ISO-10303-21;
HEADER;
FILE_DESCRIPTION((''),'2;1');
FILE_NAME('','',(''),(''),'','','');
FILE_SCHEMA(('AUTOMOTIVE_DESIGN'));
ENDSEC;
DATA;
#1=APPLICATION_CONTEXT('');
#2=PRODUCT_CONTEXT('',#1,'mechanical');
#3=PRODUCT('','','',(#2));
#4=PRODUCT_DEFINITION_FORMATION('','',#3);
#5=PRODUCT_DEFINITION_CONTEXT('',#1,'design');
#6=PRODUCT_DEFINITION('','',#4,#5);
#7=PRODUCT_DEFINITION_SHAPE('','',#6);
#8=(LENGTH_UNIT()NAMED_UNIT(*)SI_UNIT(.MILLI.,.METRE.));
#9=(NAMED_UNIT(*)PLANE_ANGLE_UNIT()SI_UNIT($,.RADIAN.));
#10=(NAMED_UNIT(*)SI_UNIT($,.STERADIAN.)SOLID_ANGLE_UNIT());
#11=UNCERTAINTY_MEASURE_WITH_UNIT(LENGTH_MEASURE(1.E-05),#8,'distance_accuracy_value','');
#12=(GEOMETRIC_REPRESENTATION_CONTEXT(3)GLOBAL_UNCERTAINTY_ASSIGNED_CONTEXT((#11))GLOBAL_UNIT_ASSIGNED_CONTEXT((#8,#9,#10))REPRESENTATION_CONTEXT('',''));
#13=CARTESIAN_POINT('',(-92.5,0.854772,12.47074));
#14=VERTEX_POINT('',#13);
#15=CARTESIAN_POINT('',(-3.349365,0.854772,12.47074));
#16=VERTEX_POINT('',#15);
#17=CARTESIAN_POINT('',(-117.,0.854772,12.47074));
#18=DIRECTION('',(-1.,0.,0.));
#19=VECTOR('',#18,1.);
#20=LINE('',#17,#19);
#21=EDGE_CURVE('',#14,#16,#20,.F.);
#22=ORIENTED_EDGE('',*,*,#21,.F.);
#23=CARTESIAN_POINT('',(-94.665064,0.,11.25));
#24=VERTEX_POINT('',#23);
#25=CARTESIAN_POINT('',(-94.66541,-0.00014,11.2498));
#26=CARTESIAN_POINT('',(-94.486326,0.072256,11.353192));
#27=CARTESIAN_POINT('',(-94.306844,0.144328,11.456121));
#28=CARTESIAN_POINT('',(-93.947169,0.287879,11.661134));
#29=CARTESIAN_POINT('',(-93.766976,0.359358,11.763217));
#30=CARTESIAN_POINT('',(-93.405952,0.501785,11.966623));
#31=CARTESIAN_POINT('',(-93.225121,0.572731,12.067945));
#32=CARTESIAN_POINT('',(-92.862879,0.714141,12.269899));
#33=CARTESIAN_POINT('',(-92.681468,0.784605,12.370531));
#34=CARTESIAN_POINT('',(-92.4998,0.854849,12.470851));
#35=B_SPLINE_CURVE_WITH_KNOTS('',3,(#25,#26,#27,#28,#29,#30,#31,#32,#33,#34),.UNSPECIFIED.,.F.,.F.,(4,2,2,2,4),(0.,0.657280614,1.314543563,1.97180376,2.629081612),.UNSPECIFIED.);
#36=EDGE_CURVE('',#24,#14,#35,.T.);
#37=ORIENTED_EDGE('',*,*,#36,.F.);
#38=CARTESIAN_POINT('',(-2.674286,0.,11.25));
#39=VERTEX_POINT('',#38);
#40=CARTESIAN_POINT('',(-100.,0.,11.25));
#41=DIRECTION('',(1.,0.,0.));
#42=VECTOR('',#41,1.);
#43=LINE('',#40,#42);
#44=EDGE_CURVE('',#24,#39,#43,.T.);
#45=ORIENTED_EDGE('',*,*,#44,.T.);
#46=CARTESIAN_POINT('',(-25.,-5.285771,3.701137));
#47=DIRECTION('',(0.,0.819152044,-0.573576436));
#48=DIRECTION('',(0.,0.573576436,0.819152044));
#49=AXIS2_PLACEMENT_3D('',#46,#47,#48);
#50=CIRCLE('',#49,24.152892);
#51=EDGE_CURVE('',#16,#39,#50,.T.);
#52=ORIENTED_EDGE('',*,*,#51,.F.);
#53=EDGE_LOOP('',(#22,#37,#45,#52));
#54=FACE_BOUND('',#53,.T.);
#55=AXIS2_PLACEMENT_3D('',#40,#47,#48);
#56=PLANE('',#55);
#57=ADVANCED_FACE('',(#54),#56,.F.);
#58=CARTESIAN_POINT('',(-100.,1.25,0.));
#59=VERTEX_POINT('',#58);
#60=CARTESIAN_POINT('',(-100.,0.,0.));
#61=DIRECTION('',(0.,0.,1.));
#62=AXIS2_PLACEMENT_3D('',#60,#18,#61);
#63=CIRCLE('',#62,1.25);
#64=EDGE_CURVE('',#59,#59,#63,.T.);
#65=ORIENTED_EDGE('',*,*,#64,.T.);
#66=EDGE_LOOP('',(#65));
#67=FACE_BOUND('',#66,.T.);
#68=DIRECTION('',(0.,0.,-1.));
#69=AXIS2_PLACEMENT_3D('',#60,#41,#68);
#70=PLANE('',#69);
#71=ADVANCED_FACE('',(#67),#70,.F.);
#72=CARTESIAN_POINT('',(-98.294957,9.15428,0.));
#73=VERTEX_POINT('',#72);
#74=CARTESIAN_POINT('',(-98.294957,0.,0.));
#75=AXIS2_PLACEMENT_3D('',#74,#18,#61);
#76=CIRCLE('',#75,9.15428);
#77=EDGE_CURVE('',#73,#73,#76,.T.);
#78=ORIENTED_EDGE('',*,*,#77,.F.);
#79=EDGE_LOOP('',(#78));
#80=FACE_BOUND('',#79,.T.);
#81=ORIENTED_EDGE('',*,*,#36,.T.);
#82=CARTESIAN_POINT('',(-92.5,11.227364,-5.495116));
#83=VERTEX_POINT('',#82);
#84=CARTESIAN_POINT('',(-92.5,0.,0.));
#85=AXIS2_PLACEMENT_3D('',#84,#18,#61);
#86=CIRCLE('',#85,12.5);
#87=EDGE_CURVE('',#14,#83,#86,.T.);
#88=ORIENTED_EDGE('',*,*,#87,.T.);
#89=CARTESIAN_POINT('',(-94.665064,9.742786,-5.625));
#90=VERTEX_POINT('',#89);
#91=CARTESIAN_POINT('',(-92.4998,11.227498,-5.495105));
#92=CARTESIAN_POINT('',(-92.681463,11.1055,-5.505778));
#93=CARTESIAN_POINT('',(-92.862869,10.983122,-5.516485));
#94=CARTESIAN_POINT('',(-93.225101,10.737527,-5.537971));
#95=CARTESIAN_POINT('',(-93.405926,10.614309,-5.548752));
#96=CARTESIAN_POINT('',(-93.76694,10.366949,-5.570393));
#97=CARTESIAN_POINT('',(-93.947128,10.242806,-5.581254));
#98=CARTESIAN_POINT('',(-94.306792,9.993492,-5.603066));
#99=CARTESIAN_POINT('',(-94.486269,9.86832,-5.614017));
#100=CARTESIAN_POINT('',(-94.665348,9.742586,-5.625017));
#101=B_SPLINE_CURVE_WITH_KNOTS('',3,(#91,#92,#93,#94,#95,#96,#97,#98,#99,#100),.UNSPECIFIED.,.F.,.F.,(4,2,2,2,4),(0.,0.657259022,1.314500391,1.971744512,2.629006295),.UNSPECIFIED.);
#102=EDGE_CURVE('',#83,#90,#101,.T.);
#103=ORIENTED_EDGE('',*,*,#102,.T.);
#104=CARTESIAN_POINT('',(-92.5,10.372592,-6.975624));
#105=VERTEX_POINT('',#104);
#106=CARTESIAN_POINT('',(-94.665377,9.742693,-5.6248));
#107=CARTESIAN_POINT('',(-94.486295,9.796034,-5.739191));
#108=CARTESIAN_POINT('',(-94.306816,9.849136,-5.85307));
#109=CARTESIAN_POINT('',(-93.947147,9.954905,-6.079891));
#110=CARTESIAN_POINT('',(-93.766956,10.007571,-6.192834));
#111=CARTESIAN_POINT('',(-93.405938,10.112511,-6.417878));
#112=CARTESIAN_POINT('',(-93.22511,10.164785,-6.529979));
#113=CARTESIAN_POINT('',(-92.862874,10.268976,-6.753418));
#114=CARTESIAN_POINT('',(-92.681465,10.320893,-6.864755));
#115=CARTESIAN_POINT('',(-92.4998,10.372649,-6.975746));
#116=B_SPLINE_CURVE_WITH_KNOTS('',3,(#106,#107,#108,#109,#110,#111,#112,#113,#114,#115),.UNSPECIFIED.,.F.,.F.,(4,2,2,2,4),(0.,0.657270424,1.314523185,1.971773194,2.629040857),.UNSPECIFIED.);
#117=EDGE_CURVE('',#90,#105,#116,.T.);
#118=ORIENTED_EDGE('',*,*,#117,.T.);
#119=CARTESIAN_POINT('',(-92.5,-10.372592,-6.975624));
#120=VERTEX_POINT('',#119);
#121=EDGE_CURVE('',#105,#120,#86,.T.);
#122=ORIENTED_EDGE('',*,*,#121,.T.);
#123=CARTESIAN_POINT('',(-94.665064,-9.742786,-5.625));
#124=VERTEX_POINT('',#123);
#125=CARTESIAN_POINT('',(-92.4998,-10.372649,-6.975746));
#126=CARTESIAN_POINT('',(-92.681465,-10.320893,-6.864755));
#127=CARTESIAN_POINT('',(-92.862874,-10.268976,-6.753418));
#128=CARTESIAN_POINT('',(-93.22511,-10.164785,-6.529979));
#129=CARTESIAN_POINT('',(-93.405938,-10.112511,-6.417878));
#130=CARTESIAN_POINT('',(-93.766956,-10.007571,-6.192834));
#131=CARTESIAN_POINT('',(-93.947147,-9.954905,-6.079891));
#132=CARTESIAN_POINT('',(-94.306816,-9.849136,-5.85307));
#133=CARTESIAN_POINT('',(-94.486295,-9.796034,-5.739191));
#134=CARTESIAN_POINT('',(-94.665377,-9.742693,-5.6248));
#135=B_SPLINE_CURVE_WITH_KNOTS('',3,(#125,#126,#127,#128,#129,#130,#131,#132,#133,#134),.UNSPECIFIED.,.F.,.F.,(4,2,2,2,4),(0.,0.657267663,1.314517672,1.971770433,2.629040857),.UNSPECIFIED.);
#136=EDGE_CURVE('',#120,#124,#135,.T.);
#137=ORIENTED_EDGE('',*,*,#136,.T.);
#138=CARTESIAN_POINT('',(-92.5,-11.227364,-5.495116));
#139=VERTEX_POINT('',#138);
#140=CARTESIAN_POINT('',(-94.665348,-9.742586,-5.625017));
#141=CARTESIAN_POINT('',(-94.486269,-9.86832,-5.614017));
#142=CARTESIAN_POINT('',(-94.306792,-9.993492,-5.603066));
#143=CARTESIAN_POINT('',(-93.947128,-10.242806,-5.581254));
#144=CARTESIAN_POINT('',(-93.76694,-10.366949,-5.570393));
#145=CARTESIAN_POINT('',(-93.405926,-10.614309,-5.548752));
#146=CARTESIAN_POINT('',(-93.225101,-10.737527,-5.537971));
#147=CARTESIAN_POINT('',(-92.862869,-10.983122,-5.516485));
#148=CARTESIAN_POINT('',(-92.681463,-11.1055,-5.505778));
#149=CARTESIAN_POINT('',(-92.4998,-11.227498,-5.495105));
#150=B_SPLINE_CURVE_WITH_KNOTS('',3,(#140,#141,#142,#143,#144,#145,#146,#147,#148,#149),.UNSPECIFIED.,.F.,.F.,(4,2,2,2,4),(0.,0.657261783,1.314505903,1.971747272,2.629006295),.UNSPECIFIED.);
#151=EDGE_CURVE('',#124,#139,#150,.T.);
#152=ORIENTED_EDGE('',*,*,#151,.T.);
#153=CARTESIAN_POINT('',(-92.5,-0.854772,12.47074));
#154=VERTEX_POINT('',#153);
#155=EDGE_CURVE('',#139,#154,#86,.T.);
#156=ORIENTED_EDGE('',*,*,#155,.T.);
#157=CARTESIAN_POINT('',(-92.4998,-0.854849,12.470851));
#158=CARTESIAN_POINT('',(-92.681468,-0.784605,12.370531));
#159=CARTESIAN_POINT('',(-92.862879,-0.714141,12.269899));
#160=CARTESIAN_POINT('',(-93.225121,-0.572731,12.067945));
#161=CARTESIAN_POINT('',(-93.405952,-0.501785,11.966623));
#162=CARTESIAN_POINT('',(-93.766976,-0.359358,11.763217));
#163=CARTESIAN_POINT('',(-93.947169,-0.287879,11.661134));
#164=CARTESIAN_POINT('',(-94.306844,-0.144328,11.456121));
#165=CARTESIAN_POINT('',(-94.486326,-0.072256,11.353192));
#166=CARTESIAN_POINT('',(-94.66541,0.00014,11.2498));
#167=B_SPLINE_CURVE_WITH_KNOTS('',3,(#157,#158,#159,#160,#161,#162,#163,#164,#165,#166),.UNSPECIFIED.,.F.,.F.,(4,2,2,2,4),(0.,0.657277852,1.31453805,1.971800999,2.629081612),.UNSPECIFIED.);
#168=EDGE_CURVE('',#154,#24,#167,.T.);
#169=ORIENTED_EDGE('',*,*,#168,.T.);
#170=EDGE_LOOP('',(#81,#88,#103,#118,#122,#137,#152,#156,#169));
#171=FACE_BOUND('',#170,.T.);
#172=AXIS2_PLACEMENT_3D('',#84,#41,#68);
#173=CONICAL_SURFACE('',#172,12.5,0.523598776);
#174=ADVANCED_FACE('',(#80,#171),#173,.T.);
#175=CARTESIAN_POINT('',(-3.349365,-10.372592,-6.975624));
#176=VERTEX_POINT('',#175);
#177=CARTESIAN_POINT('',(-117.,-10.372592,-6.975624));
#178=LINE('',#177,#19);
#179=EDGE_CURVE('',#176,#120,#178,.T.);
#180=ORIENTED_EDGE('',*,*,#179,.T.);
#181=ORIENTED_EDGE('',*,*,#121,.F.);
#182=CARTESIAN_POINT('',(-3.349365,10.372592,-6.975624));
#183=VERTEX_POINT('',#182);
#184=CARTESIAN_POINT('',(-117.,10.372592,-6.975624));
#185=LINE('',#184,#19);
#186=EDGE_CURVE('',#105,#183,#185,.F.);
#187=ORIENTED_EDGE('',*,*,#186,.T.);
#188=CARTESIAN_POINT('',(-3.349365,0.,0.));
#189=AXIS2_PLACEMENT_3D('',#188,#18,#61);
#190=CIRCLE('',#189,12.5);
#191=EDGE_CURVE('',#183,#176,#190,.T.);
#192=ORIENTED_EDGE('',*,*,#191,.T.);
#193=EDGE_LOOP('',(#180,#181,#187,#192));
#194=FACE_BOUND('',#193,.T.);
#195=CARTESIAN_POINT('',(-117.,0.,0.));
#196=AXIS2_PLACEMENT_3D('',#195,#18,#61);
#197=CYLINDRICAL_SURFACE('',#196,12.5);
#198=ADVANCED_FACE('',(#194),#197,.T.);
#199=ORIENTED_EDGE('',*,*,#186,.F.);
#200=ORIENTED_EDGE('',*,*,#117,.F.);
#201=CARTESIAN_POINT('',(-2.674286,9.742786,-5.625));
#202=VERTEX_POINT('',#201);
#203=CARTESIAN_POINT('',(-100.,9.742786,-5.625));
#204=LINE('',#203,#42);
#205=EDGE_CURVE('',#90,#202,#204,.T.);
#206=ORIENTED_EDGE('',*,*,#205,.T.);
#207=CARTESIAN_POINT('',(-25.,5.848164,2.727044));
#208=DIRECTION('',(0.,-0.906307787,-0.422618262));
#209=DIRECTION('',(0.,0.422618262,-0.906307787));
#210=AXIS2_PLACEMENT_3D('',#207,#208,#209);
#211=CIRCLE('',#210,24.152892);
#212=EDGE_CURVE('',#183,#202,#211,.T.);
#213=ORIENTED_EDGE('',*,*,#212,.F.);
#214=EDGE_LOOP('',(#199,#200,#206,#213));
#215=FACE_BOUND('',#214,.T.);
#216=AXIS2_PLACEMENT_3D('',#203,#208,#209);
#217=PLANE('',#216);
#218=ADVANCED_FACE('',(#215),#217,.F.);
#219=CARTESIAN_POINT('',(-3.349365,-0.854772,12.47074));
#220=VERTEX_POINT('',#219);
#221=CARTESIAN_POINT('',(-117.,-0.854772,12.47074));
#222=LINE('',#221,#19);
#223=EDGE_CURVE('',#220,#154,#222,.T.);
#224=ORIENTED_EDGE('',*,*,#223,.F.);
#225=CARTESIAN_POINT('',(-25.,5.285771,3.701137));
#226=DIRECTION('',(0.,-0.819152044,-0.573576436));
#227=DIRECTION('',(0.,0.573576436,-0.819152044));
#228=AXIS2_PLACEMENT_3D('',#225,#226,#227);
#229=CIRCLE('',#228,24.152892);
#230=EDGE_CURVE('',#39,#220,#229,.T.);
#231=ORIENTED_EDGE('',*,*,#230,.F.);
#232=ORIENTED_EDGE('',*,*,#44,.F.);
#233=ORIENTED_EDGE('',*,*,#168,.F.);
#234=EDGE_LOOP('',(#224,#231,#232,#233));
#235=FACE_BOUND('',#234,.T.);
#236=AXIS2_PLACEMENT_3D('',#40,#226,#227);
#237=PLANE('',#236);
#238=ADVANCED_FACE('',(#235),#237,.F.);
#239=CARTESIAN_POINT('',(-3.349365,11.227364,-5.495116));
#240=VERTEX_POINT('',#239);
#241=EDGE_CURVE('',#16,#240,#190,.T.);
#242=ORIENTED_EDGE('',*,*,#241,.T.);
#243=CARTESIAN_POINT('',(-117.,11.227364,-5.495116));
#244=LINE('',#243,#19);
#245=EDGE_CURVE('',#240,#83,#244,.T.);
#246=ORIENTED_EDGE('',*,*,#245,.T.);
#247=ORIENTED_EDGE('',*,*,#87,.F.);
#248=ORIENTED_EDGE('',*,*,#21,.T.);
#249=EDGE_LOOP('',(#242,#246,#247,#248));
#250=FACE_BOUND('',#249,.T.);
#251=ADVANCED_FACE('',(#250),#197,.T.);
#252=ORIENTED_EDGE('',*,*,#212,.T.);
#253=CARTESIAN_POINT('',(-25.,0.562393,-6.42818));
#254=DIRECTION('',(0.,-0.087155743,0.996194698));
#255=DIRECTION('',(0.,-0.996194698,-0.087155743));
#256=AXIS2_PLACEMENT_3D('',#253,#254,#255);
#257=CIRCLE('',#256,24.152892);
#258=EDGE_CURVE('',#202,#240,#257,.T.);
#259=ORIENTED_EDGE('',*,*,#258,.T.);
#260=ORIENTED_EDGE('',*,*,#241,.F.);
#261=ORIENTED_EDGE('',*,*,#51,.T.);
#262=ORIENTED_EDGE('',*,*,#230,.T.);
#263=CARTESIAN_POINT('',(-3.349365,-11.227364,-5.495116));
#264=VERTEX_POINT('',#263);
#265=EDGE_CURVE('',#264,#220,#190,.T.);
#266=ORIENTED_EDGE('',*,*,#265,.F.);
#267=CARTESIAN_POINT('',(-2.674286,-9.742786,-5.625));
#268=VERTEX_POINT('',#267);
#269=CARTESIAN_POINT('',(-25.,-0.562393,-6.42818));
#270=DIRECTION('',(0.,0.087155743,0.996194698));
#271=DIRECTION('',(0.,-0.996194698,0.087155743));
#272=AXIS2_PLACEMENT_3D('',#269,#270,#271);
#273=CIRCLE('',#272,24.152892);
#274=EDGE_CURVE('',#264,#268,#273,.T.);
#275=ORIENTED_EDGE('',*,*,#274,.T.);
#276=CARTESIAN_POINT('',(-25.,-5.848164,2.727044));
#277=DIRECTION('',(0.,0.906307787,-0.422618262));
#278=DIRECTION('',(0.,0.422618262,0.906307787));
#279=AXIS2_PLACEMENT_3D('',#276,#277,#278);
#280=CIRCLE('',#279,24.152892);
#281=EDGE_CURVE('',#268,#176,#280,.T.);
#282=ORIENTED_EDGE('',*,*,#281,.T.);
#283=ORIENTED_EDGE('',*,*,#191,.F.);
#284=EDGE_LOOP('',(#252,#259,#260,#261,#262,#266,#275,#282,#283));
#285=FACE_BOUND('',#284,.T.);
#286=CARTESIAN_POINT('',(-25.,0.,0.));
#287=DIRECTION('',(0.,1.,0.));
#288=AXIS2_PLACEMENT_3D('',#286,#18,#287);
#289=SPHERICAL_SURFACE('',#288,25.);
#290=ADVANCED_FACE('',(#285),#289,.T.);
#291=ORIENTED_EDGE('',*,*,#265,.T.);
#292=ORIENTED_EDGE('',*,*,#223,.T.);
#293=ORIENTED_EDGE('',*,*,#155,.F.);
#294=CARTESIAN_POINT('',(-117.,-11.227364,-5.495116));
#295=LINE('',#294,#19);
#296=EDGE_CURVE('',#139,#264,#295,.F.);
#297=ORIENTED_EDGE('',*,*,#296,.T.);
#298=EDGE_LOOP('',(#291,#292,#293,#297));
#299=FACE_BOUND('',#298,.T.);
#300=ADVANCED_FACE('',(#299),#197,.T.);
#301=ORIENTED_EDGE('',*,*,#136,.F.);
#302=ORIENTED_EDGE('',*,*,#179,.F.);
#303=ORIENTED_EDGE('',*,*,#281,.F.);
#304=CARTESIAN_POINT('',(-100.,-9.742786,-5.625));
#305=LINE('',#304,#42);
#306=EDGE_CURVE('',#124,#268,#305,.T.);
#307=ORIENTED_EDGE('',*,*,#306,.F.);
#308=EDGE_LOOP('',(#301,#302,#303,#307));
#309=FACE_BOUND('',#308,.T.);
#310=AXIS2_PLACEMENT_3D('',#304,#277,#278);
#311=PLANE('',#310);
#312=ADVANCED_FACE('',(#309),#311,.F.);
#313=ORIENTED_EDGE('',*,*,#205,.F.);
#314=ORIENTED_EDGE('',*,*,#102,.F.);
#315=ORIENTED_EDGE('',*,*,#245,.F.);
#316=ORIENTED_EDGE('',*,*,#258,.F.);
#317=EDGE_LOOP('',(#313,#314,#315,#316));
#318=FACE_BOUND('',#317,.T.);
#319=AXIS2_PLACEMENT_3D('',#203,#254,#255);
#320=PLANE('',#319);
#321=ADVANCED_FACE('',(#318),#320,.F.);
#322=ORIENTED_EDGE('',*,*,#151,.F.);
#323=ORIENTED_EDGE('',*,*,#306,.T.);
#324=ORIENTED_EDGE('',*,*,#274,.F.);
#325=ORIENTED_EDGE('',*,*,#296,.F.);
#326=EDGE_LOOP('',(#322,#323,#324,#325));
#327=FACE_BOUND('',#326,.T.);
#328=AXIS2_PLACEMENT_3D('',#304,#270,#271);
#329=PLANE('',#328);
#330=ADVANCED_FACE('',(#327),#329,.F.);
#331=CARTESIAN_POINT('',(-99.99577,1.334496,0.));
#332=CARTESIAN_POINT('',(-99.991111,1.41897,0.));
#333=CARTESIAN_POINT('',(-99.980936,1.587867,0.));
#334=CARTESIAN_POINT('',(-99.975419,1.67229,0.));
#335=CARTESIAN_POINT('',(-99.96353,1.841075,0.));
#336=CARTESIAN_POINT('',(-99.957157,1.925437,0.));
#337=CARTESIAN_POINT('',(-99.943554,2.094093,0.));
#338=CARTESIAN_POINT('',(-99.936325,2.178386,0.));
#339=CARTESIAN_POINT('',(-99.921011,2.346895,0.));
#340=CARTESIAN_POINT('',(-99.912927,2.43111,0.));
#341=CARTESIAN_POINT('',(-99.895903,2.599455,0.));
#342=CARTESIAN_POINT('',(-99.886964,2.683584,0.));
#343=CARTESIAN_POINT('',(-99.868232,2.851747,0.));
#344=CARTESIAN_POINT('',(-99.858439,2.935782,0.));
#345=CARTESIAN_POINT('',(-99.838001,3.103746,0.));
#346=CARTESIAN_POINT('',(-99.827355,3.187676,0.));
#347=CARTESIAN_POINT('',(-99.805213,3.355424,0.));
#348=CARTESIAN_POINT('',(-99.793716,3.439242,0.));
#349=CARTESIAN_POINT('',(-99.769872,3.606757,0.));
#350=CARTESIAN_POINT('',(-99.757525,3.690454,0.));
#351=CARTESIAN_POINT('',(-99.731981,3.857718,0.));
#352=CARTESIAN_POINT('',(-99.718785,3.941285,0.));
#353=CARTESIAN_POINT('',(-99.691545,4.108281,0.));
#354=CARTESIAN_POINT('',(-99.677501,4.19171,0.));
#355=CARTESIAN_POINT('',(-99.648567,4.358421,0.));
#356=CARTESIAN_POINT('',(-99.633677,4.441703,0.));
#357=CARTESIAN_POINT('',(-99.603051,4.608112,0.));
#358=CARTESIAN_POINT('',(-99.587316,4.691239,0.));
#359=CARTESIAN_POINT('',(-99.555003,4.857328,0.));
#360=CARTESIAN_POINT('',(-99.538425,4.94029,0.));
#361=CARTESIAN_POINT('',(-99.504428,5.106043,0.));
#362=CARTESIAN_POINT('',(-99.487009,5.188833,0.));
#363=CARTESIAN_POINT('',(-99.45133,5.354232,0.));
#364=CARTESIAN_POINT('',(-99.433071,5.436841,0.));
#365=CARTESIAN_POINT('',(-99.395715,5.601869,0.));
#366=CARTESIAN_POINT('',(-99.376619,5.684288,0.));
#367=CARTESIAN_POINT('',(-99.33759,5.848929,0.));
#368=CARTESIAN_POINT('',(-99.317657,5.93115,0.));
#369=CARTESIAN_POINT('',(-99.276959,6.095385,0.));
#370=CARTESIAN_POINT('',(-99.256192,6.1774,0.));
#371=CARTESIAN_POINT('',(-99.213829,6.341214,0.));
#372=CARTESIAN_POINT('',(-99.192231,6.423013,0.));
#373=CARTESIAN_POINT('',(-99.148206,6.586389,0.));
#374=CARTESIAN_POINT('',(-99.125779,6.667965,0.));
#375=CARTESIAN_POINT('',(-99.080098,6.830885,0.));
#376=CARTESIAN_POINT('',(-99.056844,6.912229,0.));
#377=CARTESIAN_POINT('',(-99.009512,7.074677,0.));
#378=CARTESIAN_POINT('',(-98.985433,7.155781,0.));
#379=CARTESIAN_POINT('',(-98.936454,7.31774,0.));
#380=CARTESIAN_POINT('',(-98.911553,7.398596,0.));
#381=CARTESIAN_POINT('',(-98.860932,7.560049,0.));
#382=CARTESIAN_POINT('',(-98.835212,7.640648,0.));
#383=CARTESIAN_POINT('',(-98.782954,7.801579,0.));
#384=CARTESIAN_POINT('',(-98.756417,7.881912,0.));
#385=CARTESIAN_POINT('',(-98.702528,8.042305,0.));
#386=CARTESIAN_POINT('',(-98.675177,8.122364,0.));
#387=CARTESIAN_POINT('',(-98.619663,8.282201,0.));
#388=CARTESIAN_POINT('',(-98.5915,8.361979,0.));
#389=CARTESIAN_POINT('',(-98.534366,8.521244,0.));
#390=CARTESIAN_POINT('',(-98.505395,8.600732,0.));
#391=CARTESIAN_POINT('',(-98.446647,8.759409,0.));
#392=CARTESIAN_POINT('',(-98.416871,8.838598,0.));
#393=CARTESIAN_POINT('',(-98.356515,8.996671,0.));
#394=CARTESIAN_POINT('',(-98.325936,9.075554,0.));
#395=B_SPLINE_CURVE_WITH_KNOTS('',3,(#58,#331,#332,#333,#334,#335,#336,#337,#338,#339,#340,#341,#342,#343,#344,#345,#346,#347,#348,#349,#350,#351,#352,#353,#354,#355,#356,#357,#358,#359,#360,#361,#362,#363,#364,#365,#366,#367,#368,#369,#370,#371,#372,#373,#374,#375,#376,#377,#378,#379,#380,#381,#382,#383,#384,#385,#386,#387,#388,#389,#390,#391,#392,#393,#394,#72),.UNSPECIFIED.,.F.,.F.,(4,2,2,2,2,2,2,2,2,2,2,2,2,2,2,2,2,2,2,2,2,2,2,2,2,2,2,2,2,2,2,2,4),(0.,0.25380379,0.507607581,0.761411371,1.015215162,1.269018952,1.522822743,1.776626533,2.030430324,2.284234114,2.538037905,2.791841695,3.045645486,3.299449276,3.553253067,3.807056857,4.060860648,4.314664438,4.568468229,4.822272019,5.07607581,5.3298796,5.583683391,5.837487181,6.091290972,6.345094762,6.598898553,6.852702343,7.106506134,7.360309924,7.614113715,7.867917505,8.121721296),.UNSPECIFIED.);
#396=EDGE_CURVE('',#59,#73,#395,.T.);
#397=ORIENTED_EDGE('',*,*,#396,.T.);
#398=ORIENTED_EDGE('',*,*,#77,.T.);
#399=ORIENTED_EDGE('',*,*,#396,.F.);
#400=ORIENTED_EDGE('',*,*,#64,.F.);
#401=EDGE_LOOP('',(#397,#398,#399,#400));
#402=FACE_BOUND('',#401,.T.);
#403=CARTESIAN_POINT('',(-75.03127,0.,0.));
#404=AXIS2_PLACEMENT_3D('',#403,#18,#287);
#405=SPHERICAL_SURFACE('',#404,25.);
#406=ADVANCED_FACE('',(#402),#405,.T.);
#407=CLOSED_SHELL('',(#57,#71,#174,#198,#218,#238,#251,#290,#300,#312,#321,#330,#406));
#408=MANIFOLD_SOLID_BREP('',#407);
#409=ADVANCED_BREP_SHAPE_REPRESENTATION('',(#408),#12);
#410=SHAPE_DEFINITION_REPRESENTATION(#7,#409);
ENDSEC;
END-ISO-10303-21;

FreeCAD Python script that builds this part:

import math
import FreeCAD as App
import Part
import Sketcher

V = App.Vector
Q = App.Units.Quantity


def add_polygon(sketch, points):
    """Adds a closed chain of lines whose ends are joined by coincident constraints."""
    first, n = sketch.GeometryCount, len(points)
    for a, b in zip(points, points[1:] + points[:1]):
        sketch.addGeometry(Part.LineSegment(App.Vector(*a, 0), App.Vector(*b, 0)), False)
    for i in range(n):
        sketch.addConstraint(Sketcher.Constraint("Coincident", first + i, 2, first + (i + 1) % n, 1))

doc = App.newDocument("Part")
body = doc.addObject("PartDesign::Body", "Body")

# Sketch on XY plane
sketch1 = body.newObject("Sketcher::SketchObject", "Sketch")
sketch1.AttachmentSupport = (doc.getObject("XY_Plane"), [""])
sketch1.MapMode = "FlatFace"
sketch1.addGeometry([
    Part.LineSegment(V(-92.5, 12.5, 0), V(-98.3, 9.2, 0)),  # 0
    Part.ArcOfCircle(Part.Circle(V(-75, 0, 0), V(0, 0, 1), 25), math.radians(158.52), math.radians(177.13)),  # 1
    Part.LineSegment(V(-100, 1.2, 0), V(-100, 0, 0)),  # 2
    Part.LineSegment(V(-100, 0, 0), V(0, 0, 0)),  # 3
    Part.ArcOfCircle(Part.Circle(V(-25, 0, 0), V(0, 0, 1), 25), math.radians(0), math.radians(30)),  # 4
    Part.LineSegment(V(-3.3, 12.5, 0), V(-92.5, 12.5, 0)),  # 5
], False)
sketch1.addConstraint([
    Sketcher.Constraint("Coincident", 0, 2, 1, 1),
    Sketcher.Constraint("Coincident", 1, 2, 2, 1),
    Sketcher.Constraint("Coincident", 2, 2, 3, 1),
    Sketcher.Constraint("Coincident", 3, 2, 4, 1),
    Sketcher.Constraint("Coincident", 4, 2, 5, 1),
    Sketcher.Constraint("Coincident", 5, 2, 0, 1),
    Sketcher.Constraint("Vertical", 2),
    Sketcher.Constraint("Horizontal", 3),
    Sketcher.Constraint("Horizontal", 5),
    Sketcher.Constraint("Coincident", 3, 2, -1, 1),
    Sketcher.Constraint("Equal", 1, 4),
    Sketcher.Constraint("PointOnObject", 1, 3, -1),
    Sketcher.Constraint("PointOnObject", 4, 3, -1),
    Sketcher.Constraint("Radius", 1, Q("25 mm")),
    Sketcher.Constraint("DistanceX", 3, 1, 3, 2, Q("100 mm")),
    Sketcher.Constraint("Angle", 0, Q("-150 deg")),
    Sketcher.Constraint("DistanceY", 2, 2, 2, 1, Q("1.25 mm")),
    Sketcher.Constraint("DistanceY", -1, 1, 4, 2, Q("12.5 mm")),
    Sketcher.Constraint("DistanceX", 5, 2, -1, 1, Q("92.5 mm")),
])
revolution = body.newObject("PartDesign::Revolution", "Revolution")
revolution.Profile = sketch1
revolution.ReferenceAxis = (sketch1, ["H_Axis"])
revolution.Angle = 360

# Sketch on YZ plane
sketch2 = body.newObject("Sketcher::SketchObject", "Sketch001")
sketch2.AttachmentSupport = (doc.getObject("YZ_Plane"), [""])
sketch2.MapMode = "FlatFace"
add_polygon(sketch2, [(0, 11.2), (0.9, 12.5), (-0.9, 12.5)])  # lines 0-2
sketch2.addConstraint([
    Sketcher.Constraint("Horizontal", 1),
    Sketcher.Constraint("PointOnObject", 2, 2, -2),
    Sketcher.Constraint("Equal", 0, 2),
    Sketcher.Constraint("Angle", 0, Q("55 deg")),
    Sketcher.Constraint("DistanceY", -1, 1, 0, 2, Q("12.5 mm")),
    Sketcher.Constraint("DistanceY", -1, 1, 2, 2, Q("11.25 mm")),
])
pocket1 = body.newObject("PartDesign::Pocket", "Pocket")
pocket1.Profile = sketch2
pocket1.Type = "ThroughAll"
doc.recompute()

polarpattern = body.newObject("PartDesign::PolarPattern", "PolarPattern")
polarpattern.Originals = [pocket1]
polarpattern.Axis = (doc.getObject("X_Axis"), [""])
polarpattern.Angle = 360
polarpattern.Occurrences = 3
body.Tip = polarpattern

doc.recompute()
